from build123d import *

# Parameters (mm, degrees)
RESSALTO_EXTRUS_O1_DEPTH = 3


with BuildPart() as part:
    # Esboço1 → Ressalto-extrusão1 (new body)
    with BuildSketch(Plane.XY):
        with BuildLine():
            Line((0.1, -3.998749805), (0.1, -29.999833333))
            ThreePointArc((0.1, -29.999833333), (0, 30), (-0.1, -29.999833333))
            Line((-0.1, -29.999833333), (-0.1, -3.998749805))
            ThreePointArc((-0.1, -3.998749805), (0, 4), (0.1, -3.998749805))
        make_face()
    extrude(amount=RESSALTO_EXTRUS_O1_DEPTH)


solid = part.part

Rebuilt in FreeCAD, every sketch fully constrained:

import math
import FreeCAD as App
import Part
import Sketcher

V = App.Vector
Q = App.Units.Quantity

doc = App.newDocument("Part")
body = doc.addObject("PartDesign::Body", "Body")

# Sketch on XY plane
sketch1 = doc.addObject("Sketcher::SketchObject", "Sketch")
body.addObject(sketch1)
sketch1.AttachmentSupport = (doc.XY_Plane, [""])
sketch1.MapMode = "FlatFace"
sketch1.addGeometry(Part.LineSegment(V(0.1, -4, 0), V(0.1, -30, 0)), False)
sketch1.addGeometry(Part.ArcOfCircle(Part.Circle(V(0, 0, 0), V(0, 0, 1), 30), math.radians(-90), math.radians(270)), False)
sketch1.addGeometry(Part.LineSegment(V(-0.1, -30, 0), V(-0.1, -4, 0)), False)
sketch1.addGeometry(Part.ArcOfCircle(Part.Circle(V(0, 0, 0), V(0, 0, 1), 4), math.radians(-89), math.radians(269)), False)
sketch1.addConstraint(Sketcher.Constraint("Coincident", 0, 2, 1, 1))
sketch1.addConstraint(Sketcher.Constraint("Coincident", 1, 2, 2, 1))
sketch1.addConstraint(Sketcher.Constraint("Coincident", 2, 2, 3, 2))
sketch1.addConstraint(Sketcher.Constraint("Coincident", 3, 1, 0, 1))
sketch1.addConstraint(Sketcher.Constraint("Vertical", 0))
sketch1.addConstraint(Sketcher.Constraint("Vertical", 2))
sketch1.addConstraint(Sketcher.Constraint("Coincident", 1, 3, -1, 1))
sketch1.addConstraint(Sketcher.Constraint("Coincident", 3, 3, -1, 1))
sketch1.addConstraint(Sketcher.Constraint("Horizontal", 2, 2, 3, 1))
sketch1.addConstraint(Sketcher.Constraint("Radius", 1, Q("30 mm")))
sketch1.addConstraint(Sketcher.Constraint("Radius", 3, Q("4 mm")))
sketch1.addConstraint(Sketcher.Constraint("DistanceX", -1, 1, 0, 2, Q("0.1 mm")))
pad1 = doc.addObject("PartDesign::Pad", "Pad")
body.addObject(pad1)
pad1.Profile = sketch1
pad1.Length = 3

doc.recompute()
